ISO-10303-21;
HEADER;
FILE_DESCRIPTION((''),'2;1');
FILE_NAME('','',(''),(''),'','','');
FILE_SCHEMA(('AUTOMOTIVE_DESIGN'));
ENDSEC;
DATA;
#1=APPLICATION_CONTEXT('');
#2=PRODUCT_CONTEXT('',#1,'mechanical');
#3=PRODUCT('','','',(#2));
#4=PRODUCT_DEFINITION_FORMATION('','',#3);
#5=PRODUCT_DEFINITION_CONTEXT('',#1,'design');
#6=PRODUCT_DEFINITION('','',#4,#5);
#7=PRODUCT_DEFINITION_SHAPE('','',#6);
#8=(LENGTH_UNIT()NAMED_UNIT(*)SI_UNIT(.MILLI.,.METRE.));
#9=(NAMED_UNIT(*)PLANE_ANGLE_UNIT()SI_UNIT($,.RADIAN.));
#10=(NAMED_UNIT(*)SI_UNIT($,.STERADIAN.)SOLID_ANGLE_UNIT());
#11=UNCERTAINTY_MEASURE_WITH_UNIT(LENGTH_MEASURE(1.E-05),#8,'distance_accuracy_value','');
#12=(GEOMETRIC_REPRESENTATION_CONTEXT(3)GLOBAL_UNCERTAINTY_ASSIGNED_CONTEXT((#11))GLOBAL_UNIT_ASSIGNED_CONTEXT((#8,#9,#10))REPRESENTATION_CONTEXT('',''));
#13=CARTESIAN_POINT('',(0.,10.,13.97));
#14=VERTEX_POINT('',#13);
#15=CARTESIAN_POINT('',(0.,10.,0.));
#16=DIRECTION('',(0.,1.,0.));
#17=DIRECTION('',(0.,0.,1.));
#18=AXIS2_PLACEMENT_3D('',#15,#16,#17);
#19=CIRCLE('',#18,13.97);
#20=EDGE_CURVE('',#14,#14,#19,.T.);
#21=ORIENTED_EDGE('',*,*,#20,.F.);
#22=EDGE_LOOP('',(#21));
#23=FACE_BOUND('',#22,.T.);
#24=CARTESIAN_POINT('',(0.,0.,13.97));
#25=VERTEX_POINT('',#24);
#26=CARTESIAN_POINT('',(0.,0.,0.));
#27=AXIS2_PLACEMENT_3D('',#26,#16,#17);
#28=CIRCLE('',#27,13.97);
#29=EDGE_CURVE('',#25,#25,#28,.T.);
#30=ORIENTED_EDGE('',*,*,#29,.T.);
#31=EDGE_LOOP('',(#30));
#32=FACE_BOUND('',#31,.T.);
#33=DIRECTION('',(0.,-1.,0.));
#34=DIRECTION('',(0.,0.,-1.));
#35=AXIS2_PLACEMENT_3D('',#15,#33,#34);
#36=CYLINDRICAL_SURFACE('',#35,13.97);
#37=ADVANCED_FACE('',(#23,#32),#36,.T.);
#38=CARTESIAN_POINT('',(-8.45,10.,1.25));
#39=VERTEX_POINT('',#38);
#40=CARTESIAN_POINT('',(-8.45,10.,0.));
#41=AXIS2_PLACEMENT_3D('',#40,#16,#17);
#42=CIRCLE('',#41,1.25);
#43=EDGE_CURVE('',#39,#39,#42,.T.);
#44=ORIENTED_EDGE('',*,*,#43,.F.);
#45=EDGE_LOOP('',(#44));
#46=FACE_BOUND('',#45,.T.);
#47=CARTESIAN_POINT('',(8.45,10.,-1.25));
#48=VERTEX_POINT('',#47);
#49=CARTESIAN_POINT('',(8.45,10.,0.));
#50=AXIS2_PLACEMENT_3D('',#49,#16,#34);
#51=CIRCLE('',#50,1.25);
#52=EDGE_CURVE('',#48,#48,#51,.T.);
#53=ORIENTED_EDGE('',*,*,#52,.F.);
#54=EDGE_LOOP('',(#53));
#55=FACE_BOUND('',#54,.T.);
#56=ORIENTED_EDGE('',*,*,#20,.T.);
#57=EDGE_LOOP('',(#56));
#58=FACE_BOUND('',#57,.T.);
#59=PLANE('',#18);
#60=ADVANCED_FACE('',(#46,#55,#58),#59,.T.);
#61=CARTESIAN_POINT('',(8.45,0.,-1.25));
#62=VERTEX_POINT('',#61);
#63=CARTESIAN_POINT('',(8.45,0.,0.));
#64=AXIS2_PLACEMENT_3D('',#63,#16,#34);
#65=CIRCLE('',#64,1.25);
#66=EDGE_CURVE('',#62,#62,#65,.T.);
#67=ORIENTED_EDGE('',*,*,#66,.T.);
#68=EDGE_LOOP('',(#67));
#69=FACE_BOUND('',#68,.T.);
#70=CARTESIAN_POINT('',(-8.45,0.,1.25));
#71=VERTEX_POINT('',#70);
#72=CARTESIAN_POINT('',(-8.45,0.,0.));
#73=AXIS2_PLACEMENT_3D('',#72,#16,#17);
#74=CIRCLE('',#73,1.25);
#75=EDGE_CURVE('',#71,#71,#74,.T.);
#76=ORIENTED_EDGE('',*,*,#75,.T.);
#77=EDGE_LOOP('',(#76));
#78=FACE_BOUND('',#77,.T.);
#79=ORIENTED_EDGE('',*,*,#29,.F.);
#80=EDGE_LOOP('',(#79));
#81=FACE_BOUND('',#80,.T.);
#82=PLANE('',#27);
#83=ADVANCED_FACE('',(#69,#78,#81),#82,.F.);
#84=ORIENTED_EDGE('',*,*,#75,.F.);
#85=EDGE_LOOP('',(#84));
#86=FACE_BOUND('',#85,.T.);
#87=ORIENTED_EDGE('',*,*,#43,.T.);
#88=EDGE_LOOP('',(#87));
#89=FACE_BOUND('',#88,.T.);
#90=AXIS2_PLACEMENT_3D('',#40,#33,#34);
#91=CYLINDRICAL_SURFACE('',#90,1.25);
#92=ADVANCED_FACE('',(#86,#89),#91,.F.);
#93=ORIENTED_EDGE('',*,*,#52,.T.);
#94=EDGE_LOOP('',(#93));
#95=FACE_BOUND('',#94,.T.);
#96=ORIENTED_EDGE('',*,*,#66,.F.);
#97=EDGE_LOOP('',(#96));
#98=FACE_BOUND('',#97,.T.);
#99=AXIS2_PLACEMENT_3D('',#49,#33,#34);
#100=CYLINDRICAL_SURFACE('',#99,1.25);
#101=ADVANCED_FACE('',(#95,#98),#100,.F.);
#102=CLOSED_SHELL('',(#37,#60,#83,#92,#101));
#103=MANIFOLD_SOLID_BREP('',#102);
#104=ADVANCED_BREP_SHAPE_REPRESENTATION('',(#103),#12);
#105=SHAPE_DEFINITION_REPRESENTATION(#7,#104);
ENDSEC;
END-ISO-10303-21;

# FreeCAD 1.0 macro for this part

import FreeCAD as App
import Part
import Sketcher

V = App.Vector

doc = App.newDocument("Part")
body = doc.addObject("PartDesign::Body", "Body")

# Sketch on XZ plane
sketch1 = body.newObject("Sketcher::SketchObject", "Sketch")
sketch1.AttachmentSupport = (doc.getObject("XZ_Plane"), [""])
sketch1.MapMode = "FlatFace"
sketch1.addGeometry(Part.Circle(V(0, 0, 0), V(0, 0, 1), 13.97), False)
sketch1.addGeometry(Part.Circle(V(-8.45, 0, 0), V(0, 0, 1), 1.25), False)
sketch1.addGeometry(Part.Circle(V(8.45, 0, 0), V(0, 0, 1), 1.25), False)
sketch1.addConstraint(Sketcher.Constraint("Coincident", 0, 3, -1, 1))
sketch1.addConstraint(Sketcher.Constraint("Equal", 1, 2))
sketch1.addConstraint(Sketcher.Constraint("Symmetric", 1, 3, 2, 3, -1, 1))
sketch1.addConstraint(Sketcher.Constraint("PointOnObject", 1, 3, -1))
sketch1.addConstraint(Sketcher.Constraint("Diameter", 1, 2.5))
sketch1.addConstraint(Sketcher.Constraint("Diameter", 0, 27.94))
sketch1.addConstraint(Sketcher.Constraint("DistanceX", 1, 3, 2, 3, 16.9))
pad1 = body.newObject("PartDesign::Pad", "Pad")
pad1.Profile = sketch1
pad1.Length = 10
pad1.Reversed = True

doc.recompute()
